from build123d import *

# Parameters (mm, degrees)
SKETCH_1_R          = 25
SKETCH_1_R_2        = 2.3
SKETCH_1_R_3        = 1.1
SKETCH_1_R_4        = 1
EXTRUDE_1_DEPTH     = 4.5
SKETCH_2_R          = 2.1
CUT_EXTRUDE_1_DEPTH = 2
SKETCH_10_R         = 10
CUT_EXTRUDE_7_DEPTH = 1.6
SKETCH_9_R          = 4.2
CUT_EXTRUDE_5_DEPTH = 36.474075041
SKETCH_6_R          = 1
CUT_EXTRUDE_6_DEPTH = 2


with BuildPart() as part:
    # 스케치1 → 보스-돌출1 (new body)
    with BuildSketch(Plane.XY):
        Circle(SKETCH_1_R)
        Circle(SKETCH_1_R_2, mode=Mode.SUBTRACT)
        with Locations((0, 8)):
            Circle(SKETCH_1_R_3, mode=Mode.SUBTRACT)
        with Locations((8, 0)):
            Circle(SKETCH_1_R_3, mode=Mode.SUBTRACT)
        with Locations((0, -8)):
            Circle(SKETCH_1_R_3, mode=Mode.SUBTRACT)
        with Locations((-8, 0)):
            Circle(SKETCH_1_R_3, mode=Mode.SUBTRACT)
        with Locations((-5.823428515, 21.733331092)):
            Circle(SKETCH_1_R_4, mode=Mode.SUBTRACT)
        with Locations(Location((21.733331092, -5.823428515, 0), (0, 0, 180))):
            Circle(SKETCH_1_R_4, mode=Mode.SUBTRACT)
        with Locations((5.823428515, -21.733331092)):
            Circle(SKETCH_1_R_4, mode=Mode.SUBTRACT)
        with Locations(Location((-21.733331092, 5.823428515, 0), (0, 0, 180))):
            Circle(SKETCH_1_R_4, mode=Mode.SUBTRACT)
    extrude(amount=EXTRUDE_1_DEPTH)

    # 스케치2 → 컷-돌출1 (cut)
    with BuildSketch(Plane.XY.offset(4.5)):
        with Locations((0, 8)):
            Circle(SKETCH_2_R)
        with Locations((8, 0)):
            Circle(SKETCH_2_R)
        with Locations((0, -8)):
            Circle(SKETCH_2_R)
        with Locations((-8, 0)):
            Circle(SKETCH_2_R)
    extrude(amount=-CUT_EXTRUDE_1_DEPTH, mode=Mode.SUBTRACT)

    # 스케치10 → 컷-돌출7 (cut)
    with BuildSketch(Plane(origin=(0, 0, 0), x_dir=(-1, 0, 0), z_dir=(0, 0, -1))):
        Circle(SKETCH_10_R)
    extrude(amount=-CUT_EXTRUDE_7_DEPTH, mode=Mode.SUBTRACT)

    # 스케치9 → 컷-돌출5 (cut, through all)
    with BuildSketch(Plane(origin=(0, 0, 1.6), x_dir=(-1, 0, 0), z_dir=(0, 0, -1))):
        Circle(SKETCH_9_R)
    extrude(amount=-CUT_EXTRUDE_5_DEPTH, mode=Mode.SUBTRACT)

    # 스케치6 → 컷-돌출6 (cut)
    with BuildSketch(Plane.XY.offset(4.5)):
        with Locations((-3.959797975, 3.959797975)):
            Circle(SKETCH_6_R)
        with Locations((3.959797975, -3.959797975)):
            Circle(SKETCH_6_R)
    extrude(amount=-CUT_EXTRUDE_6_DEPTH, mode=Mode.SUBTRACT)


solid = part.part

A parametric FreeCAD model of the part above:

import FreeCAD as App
import Part
import Sketcher

doc = App.newDocument("Part")
body = doc.addObject("PartDesign::Body", "Body")

sketch1 = body.newObject("Sketcher::SketchObject", "Sketch")
sketch1.AttachmentSupport = (doc.getObject("XY_Plane"), [""])
sketch1.MapMode = "FlatFace"
sketch1.addGeometry(Part.Circle(App.Vector(0, 0, 0), App.Vector(0, 0, 1), 25), False)
sketch1.addGeometry(Part.Circle(App.Vector(5.8, -21.7, 0), App.Vector(0, 0, 1), 1), False)
sketch1.addGeometry(Part.Circle(App.Vector(0, -8, 0), App.Vector(0, 0, 1), 1.1), False)
sketch1.addGeometry(Part.Circle(App.Vector(21.7, -5.8, 0), App.Vector(0, 0, 1), 1), False)
sketch1.addGeometry(Part.Circle(App.Vector(-21.7, 5.8, 0), App.Vector(0, 0, 1), 1), False)
sketch1.addGeometry(Part.Circle(App.Vector(-8, 0, 0), App.Vector(0, 0, 1), 1.1), False)
sketch1.addGeometry(Part.Circle(App.Vector(-5.8, 21.7, 0), App.Vector(0, 0, 1), 1), False)
sketch1.addGeometry(Part.Circle(App.Vector(0, 0, 0), App.Vector(0, 0, 1), 2.3), False)
sketch1.addGeometry(Part.Circle(App.Vector(8, 0, 0), App.Vector(0, 0, 1), 1.1), False)
sketch1.addGeometry(Part.Circle(App.Vector(0, 8, 0), App.Vector(0, 0, 1), 1.1), False)
sketch1.addConstraint(Sketcher.Constraint("Coincident", 0, 3, -1, 1))
sketch1.addConstraint(Sketcher.Constraint("Coincident", 7, 3, -1, 1))
sketch1.addConstraint(Sketcher.Constraint("Equal", 1, 3))
sketch1.addConstraint(Sketcher.Constraint("Equal", 3, 4))
sketch1.addConstraint(Sketcher.Constraint("Equal", 2, 5))
sketch1.addConstraint(Sketcher.Constraint("Equal", 4, 6))
sketch1.addConstraint(Sketcher.Constraint("Equal", 5, 8))
sketch1.addConstraint(Sketcher.Constraint("Equal", 8, 9))
sketch1.addConstraint(Sketcher.Constraint("Symmetric", 3, 3, 4, 3, -1, 1))
sketch1.addConstraint(Sketcher.Constraint("Symmetric", 1, 3, 6, 3, -1, 1))
sketch1.addConstraint(Sketcher.Constraint("Symmetric", 5, 3, 8, 3, -1, 1))
sketch1.addConstraint(Sketcher.Constraint("Symmetric", 2, 3, 9, 3, -1, 1))
sketch1.addConstraint(Sketcher.Constraint("PointOnObject", 2, 3, -2))
sketch1.addConstraint(Sketcher.Constraint("PointOnObject", 5, 3, -1))
sketch1.addConstraint(Sketcher.Constraint("Diameter", 0, 50.0))
sketch1.addConstraint(Sketcher.Constraint("Diameter", 1, 2.0))
sketch1.addConstraint(Sketcher.Constraint("Diameter", 2, 2.2))
sketch1.addConstraint(Sketcher.Constraint("Diameter", 7, 4.6))
sketch1.addConstraint(Sketcher.Constraint("DistanceY", 2, 3, -1, 1, 8.0))
sketch1.addConstraint(Sketcher.Constraint("DistanceX", 5, 3, -1, 1, 8.0))
sketch1.addConstraint(Sketcher.Constraint("DistanceX", -1, 1, 1, 3, 5.823429))
sketch1.addConstraint(Sketcher.Constraint("DistanceY", 1, 3, -1, 1, 21.733331))
sketch1.addConstraint(Sketcher.Constraint("DistanceX", -1, 1, 3, 3, 21.733331))
sketch1.addConstraint(Sketcher.Constraint("DistanceY", 3, 3, -1, 1, 5.823429))
pad1 = body.newObject("PartDesign::Pad", "Pad")
pad1.Profile = sketch1
pad1.Length = 4.5

sketch2 = body.newObject("Sketcher::SketchObject", "Sketch001")
sketch2.AttachmentSupport = (doc.getObject("XY_Plane"), [""])
sketch2.MapMode = "FlatFace"
sketch2.AttachmentOffset = App.Placement(App.Vector(0, 0, 4.5), App.Rotation())
sketch2.addGeometry(Part.Circle(App.Vector(0, 8, 0), App.Vector(0, 0, 1), 2.1), False)
sketch2.addGeometry(Part.Circle(App.Vector(8, 0, 0), App.Vector(0, 0, 1), 2.1), False)
sketch2.addGeometry(Part.Circle(App.Vector(0, -8, 0), App.Vector(0, 0, 1), 2.1), False)
sketch2.addGeometry(Part.Circle(App.Vector(-8, 0, 0), App.Vector(0, 0, 1), 2.1), False)
sketch2.addConstraint(Sketcher.Constraint("Equal", 0, 1))
sketch2.addConstraint(Sketcher.Constraint("Equal", 1, 2))
sketch2.addConstraint(Sketcher.Constraint("Equal", 2, 3))
sketch2.addConstraint(Sketcher.Constraint("Symmetric", 0, 3, 2, 3, -1, 1))
sketch2.addConstraint(Sketcher.Constraint("Symmetric", 1, 3, 3, 3, -1, 1))
sketch2.addConstraint(Sketcher.Constraint("PointOnObject", 0, 3, -2))
sketch2.addConstraint(Sketcher.Constraint("PointOnObject", 1, 3, -1))
sketch2.addConstraint(Sketcher.Constraint("Diameter", 0, 4.2))
sketch2.addConstraint(Sketcher.Constraint("DistanceY", -1, 1, 0, 3, 8.0))
sketch2.addConstraint(Sketcher.Constraint("DistanceX", -1, 1, 1, 3, 8.0))
pocket1 = body.newObject("PartDesign::Pocket", "Pocket")
pocket1.Profile = sketch2
pocket1.Length = 2

sketch3 = body.newObject("Sketcher::SketchObject", "Sketch002")
sketch3.AttachmentSupport = (doc.getObject("XY_Plane"), [""])
sketch3.MapMode = "FlatFace"
sketch3.addGeometry(Part.Circle(App.Vector(0, 0, 0), App.Vector(0, 0, 1), 10), False)
sketch3.addConstraint(Sketcher.Constraint("Coincident", 0, 3, -1, 1))
sketch3.addConstraint(Sketcher.Constraint("Diameter", 0, 20.0))
pocket2 = body.newObject("PartDesign::Pocket", "Pocket001")
pocket2.Profile = sketch3
pocket2.Length = 1.6
pocket2.Reversed = True

sketch4 = body.newObject("Sketcher::SketchObject", "Sketch003")
sketch4.AttachmentSupport = (doc.getObject("XY_Plane"), [""])
sketch4.MapMode = "FlatFace"
sketch4.AttachmentOffset = App.Placement(App.Vector(0, 0, 1.6), App.Rotation())
sketch4.addGeometry(Part.Circle(App.Vector(0, 0, 0), App.Vector(0, 0, 1), 4.2), False)
sketch4.addConstraint(Sketcher.Constraint("Coincident", 0, 3, -1, 1))
sketch4.addConstraint(Sketcher.Constraint("Diameter", 0, 8.4))
pocket3 = body.newObject("PartDesign::Pocket", "Pocket002")
pocket3.Profile = sketch4
pocket3.Type = "ThroughAll"
pocket3.Reversed = True

sketch5 = body.newObject("Sketcher::SketchObject", "Sketch004")
sketch5.AttachmentSupport = (doc.getObject("XY_Plane"), [""])
sketch5.MapMode = "FlatFace"
sketch5.AttachmentOffset = App.Placement(App.Vector(0, 0, 4.5), App.Rotation())
sketch5.addGeometry(Part.Circle(App.Vector(-4, 4, 0), App.Vector(0, 0, 1), 1), False)
sketch5.addGeometry(Part.Circle(App.Vector(4, -4, 0), App.Vector(0, 0, 1), 1), False)
sketch5.addConstraint(Sketcher.Constraint("Equal", 0, 1))
sketch5.addConstraint(Sketcher.Constraint("Symmetric", 0, 3, 1, 3, -1, 1))
sketch5.addConstraint(Sketcher.Constraint("Diameter", 0, 2.0))
sketch5.addConstraint(Sketcher.Constraint("DistanceX", 0, 3, -1, 1, 3.959798))
sketch5.addConstraint(Sketcher.Constraint("DistanceY", -1, 1, 0, 3, 3.959798))
pocket4 = body.newObject("PartDesign::Pocket", "Pocket003")
pocket4.Profile = sketch5
pocket4.Length = 2

doc.recompute()
